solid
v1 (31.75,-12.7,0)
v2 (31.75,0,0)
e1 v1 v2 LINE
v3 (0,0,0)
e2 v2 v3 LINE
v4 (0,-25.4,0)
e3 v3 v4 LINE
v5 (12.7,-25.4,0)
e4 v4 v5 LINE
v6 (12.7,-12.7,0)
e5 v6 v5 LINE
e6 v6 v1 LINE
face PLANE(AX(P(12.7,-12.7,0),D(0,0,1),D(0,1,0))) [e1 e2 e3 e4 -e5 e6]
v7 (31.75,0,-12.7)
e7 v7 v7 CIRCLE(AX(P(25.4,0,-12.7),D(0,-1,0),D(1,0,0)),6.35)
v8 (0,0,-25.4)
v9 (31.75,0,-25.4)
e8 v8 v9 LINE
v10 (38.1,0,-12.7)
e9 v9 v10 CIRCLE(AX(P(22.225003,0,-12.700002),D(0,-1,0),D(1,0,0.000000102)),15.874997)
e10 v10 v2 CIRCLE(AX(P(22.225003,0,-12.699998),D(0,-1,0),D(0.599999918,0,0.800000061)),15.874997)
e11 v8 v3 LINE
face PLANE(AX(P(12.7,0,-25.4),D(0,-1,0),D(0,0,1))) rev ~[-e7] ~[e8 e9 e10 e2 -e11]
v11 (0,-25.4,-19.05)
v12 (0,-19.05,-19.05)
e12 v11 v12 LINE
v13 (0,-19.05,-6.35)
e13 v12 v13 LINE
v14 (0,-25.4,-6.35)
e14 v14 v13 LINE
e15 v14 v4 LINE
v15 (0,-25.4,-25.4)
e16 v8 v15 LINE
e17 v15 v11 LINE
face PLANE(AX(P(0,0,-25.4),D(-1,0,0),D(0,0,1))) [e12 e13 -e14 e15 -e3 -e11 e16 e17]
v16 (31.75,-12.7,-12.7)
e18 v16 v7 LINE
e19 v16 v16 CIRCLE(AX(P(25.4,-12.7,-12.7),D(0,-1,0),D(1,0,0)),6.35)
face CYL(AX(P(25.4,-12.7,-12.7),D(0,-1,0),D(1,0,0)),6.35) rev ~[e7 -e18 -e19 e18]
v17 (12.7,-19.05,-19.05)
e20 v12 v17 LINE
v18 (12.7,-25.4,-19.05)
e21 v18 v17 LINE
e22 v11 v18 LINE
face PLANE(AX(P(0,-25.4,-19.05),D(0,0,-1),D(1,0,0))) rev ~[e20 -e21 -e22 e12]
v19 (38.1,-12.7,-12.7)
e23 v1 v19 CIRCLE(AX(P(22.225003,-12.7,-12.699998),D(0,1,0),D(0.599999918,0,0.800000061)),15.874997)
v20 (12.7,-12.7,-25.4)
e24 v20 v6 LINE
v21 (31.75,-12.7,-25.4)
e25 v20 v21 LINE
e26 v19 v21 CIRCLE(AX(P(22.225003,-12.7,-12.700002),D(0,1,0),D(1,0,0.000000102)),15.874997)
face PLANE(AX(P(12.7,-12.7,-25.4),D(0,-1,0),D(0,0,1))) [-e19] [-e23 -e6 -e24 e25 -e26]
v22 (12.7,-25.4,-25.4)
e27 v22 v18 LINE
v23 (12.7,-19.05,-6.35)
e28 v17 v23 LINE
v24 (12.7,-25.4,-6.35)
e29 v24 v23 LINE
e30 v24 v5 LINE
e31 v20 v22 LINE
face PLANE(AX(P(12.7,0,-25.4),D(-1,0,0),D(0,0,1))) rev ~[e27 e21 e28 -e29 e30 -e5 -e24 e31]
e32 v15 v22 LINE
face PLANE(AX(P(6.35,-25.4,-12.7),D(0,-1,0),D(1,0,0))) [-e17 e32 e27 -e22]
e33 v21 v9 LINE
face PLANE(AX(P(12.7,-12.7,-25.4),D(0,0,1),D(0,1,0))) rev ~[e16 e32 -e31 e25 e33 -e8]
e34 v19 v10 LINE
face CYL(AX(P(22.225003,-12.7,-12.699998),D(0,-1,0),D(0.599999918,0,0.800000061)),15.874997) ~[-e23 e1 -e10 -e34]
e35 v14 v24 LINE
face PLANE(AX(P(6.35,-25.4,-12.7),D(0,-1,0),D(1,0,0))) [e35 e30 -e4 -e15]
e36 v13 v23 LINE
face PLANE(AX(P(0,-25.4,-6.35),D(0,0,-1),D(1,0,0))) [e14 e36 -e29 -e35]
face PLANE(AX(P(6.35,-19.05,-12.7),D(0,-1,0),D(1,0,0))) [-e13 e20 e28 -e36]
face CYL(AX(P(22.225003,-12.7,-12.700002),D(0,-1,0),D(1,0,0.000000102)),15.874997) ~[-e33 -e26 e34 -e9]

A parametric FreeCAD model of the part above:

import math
import FreeCAD as App
import Part
import Sketcher
from FreeCAD import Vector
Q = App.Units.Quantity

doc = App.newDocument("Part")
body = doc.addObject("PartDesign::Body", "Body")

# Sketch on XZ plane
sketch1 = body.newObject("Sketcher::SketchObject", "Sketch")
sketch1.AttachmentSupport = (doc.getObject("XZ_Plane"), [""])
sketch1.MapMode = "FlatFace"
sketch1.addGeometry(Part.LineSegment(Vector(0, 0, 0), Vector(0, -25, 0)), False)
sketch1.addGeometry(Part.LineSegment(Vector(0, -25, 0), Vector(13, -25, 0)), False)
sketch1.addGeometry(Part.LineSegment(Vector(13, -25, 0), Vector(13, 0, 0)), False)
sketch1.addGeometry(Part.LineSegment(Vector(13, 0, 0), Vector(0, 0, 0)), False)
sketch1.addConstraint(Sketcher.Constraint("Coincident", 0, 2, 1, 1))
sketch1.addConstraint(Sketcher.Constraint("Coincident", 1, 2, 2, 1))
sketch1.addConstraint(Sketcher.Constraint("Coincident", 2, 2, 3, 1))
sketch1.addConstraint(Sketcher.Constraint("Coincident", 3, 2, 0, 1))
sketch1.addConstraint(Sketcher.Constraint("Vertical", 0))
sketch1.addConstraint(Sketcher.Constraint("Horizontal", 1))
sketch1.addConstraint(Sketcher.Constraint("Vertical", 2))
sketch1.addConstraint(Sketcher.Constraint("Horizontal", 3))
sketch1.addConstraint(Sketcher.Constraint("Coincident", 3, 2, -1, 1))
sketch1.addConstraint(Sketcher.Constraint("DistanceY", 0, 2, 0, 1, Q("1 in")))
sketch1.addConstraint(Sketcher.Constraint("DistanceX", 1, 1, 1, 2, Q("0.5 in")))
pad1 = body.newObject("PartDesign::Pad", "Pad")
pad1.Profile = sketch1
pad1.Length = Q("1 in")

# Sketch on XZ plane
sketch2 = body.newObject("Sketcher::SketchObject", "Sketch001")
sketch2.AttachmentSupport = (doc.getObject("XZ_Plane"), [""])
sketch2.MapMode = "FlatFace"
sketch2.AttachmentOffset = App.Placement(Vector(0, 0, 1 * 25.4), App.Rotation())
sketch2.addGeometry(Part.LineSegment(Vector(0, -6, 0), Vector(0, -19, 0)), False)
sketch2.addGeometry(Part.LineSegment(Vector(0, -19, 0), Vector(13, -19, 0)), False)
sketch2.addGeometry(Part.LineSegment(Vector(13, -19, 0), Vector(13, -6, 0)), False)
sketch2.addGeometry(Part.LineSegment(Vector(13, -6, 0), Vector(0, -6, 0)), False)
sketch2.addConstraint(Sketcher.Constraint("Coincident", 0, 2, 1, 1))
sketch2.addConstraint(Sketcher.Constraint("Coincident", 1, 2, 2, 1))
sketch2.addConstraint(Sketcher.Constraint("Coincident", 2, 2, 3, 1))
sketch2.addConstraint(Sketcher.Constraint("Coincident", 3, 2, 0, 1))
sketch2.addConstraint(Sketcher.Constraint("Vertical", 0))
sketch2.addConstraint(Sketcher.Constraint("Horizontal", 1))
sketch2.addConstraint(Sketcher.Constraint("Vertical", 2))
sketch2.addConstraint(Sketcher.Constraint("Horizontal", 3))
sketch2.addConstraint(Sketcher.Constraint("PointOnObject", 0, 2, -2))
sketch2.addConstraint(Sketcher.Constraint("Equal", 3, 0))
sketch2.addConstraint(Sketcher.Constraint("DistanceX", 1, 1, 1, 2, Q("0.5 in")))
sketch2.addConstraint(Sketcher.Constraint("DistanceY", 0, 2, -1, 1, Q("0.75 in")))
pocket1 = body.newObject("PartDesign::Pocket", "Pocket")
pocket1.Profile = sketch2
pocket1.Length = Q("0.25 in")

# Sketch on YZ plane
sketch3 = body.newObject("Sketcher::SketchObject", "Sketch002")
sketch3.AttachmentSupport = (doc.getObject("YZ_Plane"), [""])
sketch3.MapMode = "FlatFace"
sketch3.AttachmentOffset = App.Placement(Vector(0, 0, 0.5 * 25.4), App.Rotation())
sketch3.addGeometry(Part.LineSegment(Vector(-13, 0, 0), Vector(-13, -25, 0)), False)
sketch3.addGeometry(Part.LineSegment(Vector(-13, -25, 0), Vector(0, -25, 0)), False)
sketch3.addGeometry(Part.LineSegment(Vector(0, -25, 0), Vector(0, 0, 0)), False)
sketch3.addGeometry(Part.LineSegment(Vector(0, 0, 0), Vector(-13, 0, 0)), False)
sketch3.addConstraint(Sketcher.Constraint("Coincident", 0, 2, 1, 1))
sketch3.addConstraint(Sketcher.Constraint("Coincident", 1, 2, 2, 1))
sketch3.addConstraint(Sketcher.Constraint("Coincident", 2, 2, 3, 1))
sketch3.addConstraint(Sketcher.Constraint("Coincident", 3, 2, 0, 1))
sketch3.addConstraint(Sketcher.Constraint("Vertical", 0))
sketch3.addConstraint(Sketcher.Constraint("Horizontal", 1))
sketch3.addConstraint(Sketcher.Constraint("Vertical", 2))
sketch3.addConstraint(Sketcher.Constraint("Horizontal", 3))
sketch3.addConstraint(Sketcher.Constraint("Coincident", 2, 2, -1, 1))
sketch3.addConstraint(Sketcher.Constraint("DistanceY", 0, 2, 0, 1, Q("1 in")))
sketch3.addConstraint(Sketcher.Constraint("DistanceX", 1, 1, 1, 2, Q("0.5 in")))
pad2 = body.newObject("PartDesign::Pad", "Pad001")
pad2.Profile = sketch3
pad2.Length = Q("1 in")

# Sketch on XZ plane
sketch4 = body.newObject("Sketcher::SketchObject", "Sketch003")
sketch4.AttachmentSupport = (doc.getObject("XZ_Plane"), [""])
sketch4.MapMode = "FlatFace"
sketch4.AttachmentOffset = App.Placement(Vector(0, 0, 0.5 * 25.4), App.Rotation())
sketch4.addGeometry(Part.ArcOfCircle(Part.Circle(Vector(22, -13, 0), Vector(0, 0, 1), 16), math.radians(-53), math.radians(0)), False)
sketch4.addGeometry(Part.LineSegment(Vector(32, -25, 0), Vector(38, -25, 0)), False)
sketch4.addGeometry(Part.LineSegment(Vector(38, -25, 0), Vector(38, -13, 0)), False)
sketch4.addGeometry(Part.ArcOfCircle(Part.Circle(Vector(22, -13, 0), Vector(0, 0, 1), 16), math.radians(0), math.radians(53)), False)
sketch4.addGeometry(Part.LineSegment(Vector(38, -13, 0), Vector(38, 0, 0)), False)
sketch4.addGeometry(Part.LineSegment(Vector(38, 0, 0), Vector(32, 0, 0)), False)
sketch4.addConstraint(Sketcher.Constraint("Coincident", 0, 1, 1, 1))
sketch4.addConstraint(Sketcher.Constraint("Coincident", 1, 2, 2, 1))
sketch4.addConstraint(Sketcher.Constraint("Tangent", 2, 2, 0, 2))
sketch4.addConstraint(Sketcher.Constraint("Tangent", 3, 1, 4, 1))
sketch4.addConstraint(Sketcher.Constraint("Coincident", 4, 2, 5, 1))
sketch4.addConstraint(Sketcher.Constraint("Coincident", 5, 2, 3, 2))
sketch4.addConstraint(Sketcher.Constraint("Horizontal", 1))
sketch4.addConstraint(Sketcher.Constraint("Vertical", 2))
sketch4.addConstraint(Sketcher.Constraint("Vertical", 4))
sketch4.addConstraint(Sketcher.Constraint("Horizontal", 5))
sketch4.addConstraint(Sketcher.Constraint("Coincident", 3, 3, 0, 3))
sketch4.addConstraint(Sketcher.Constraint("Equal", 0, 3))
sketch4.addConstraint(Sketcher.Constraint("PointOnObject", 4, 2, -1))
sketch4.addConstraint(Sketcher.Constraint("Vertical", 0, 1, 5, 2))
sketch4.addConstraint(Sketcher.Constraint("DistanceY", 2, 1, 2, 2, Q("0.5 in")))
sketch4.addConstraint(Sketcher.Constraint("Radius", 0, Q("0.6249999 in")))
sketch4.addConstraint(Sketcher.Constraint("DistanceX", -1, 1, 1, 2, Q("1.5 in")))
pocket2 = body.newObject("PartDesign::Pocket", "Pocket001")
pocket2.Profile = sketch4
pocket2.Type = "ThroughAll"

# Sketch on XZ plane
sketch5 = body.newObject("Sketcher::SketchObject", "Sketch004")
sketch5.AttachmentSupport = (doc.getObject("XZ_Plane"), [""])
sketch5.MapMode = "FlatFace"
sketch5.AttachmentOffset = App.Placement(Vector(0, 0, 0.5 * 25.4), App.Rotation())
sketch5.addGeometry(Part.Circle(Vector(25, -13, 0), Vector(0, 0, 1), 6), False)
sketch5.addConstraint(Sketcher.Constraint("Diameter", 0, Q("0.5 in")))
sketch5.addConstraint(Sketcher.Constraint("DistanceX", -1, 1, 0, 3, Q("1 in")))
sketch5.addConstraint(Sketcher.Constraint("DistanceY", 0, 3, -1, 1, Q("0.5 in")))
pocket3 = body.newObject("PartDesign::Pocket", "Pocket002")
pocket3.Profile = sketch5
pocket3.Type = "ThroughAll"

doc.recompute()
